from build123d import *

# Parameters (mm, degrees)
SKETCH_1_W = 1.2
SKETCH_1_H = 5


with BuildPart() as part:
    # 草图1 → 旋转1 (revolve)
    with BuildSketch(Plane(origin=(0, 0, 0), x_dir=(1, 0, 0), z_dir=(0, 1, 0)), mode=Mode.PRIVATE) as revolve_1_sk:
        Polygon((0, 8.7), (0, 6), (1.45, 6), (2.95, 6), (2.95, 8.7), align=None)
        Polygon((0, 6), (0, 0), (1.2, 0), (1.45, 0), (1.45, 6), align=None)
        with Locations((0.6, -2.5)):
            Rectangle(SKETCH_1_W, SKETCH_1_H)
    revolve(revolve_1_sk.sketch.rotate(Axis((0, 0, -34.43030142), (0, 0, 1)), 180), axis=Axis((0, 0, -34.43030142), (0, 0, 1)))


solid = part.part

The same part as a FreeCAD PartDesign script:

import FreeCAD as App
import Part
import Sketcher
Q = App.Units.Quantity


def add_polygon(sketch, points):
    """Adds a closed chain of lines whose ends are joined by coincident constraints."""
    first, n = sketch.GeometryCount, len(points)
    for a, b in zip(points, points[1:] + points[:1]):
        sketch.addGeometry(Part.LineSegment(App.Vector(*a, 0), App.Vector(*b, 0)), False)
    for i in range(n):
        sketch.addConstraint(Sketcher.Constraint("Coincident", first + i, 2, first + (i + 1) % n, 1))

doc = App.newDocument("Part")
body = doc.addObject("PartDesign::Body", "Body")

# Sketch on XZ plane
sketch1 = body.newObject("Sketcher::SketchObject", "Sketch")
sketch1.AttachmentSupport = (doc.getObject("XZ_Plane"), [""])
sketch1.MapMode = "FlatFace"
add_polygon(sketch1, [(0, -8.7), (0, 5), (1.2, 5), (1.2, 0), (1.45, 0), (1.45, -6), (2.95, -6), (2.95, -8.7)])  # lines 0-7
sketch1.addConstraint([
    Sketcher.Constraint("Vertical", 0),
    Sketcher.Constraint("Horizontal", 1),
    Sketcher.Constraint("Vertical", 2),
    Sketcher.Constraint("Horizontal", 3),
    Sketcher.Constraint("Vertical", 4),
    Sketcher.Constraint("Horizontal", 5),
    Sketcher.Constraint("Vertical", 6),
    Sketcher.Constraint("Horizontal", 7),
    Sketcher.Constraint("PointOnObject", 0, 2, -2),
    Sketcher.Constraint("PointOnObject", 2, 2, -1),
    Sketcher.Constraint("DistanceY", 2, 2, 2, 1, Q("5 mm")),
    Sketcher.Constraint("DistanceY", 4, 2, 4, 1, Q("6 mm")),
    Sketcher.Constraint("DistanceX", 1, 1, 1, 2, Q("1.2 mm")),
    Sketcher.Constraint("DistanceX", 5, 1, 5, 2, Q("1.5 mm")),
    Sketcher.Constraint("DistanceY", 0, 1, 0, 2, Q("13.7 mm")),
    Sketcher.Constraint("DistanceX", 3, 1, 3, 2, Q("0.25 mm")),
])
revolution = body.newObject("PartDesign::Revolution", "Revolution")
revolution.Profile = sketch1
revolution.ReferenceAxis = (sketch1, ["V_Axis"])
revolution.Angle = 360

doc.recompute()
